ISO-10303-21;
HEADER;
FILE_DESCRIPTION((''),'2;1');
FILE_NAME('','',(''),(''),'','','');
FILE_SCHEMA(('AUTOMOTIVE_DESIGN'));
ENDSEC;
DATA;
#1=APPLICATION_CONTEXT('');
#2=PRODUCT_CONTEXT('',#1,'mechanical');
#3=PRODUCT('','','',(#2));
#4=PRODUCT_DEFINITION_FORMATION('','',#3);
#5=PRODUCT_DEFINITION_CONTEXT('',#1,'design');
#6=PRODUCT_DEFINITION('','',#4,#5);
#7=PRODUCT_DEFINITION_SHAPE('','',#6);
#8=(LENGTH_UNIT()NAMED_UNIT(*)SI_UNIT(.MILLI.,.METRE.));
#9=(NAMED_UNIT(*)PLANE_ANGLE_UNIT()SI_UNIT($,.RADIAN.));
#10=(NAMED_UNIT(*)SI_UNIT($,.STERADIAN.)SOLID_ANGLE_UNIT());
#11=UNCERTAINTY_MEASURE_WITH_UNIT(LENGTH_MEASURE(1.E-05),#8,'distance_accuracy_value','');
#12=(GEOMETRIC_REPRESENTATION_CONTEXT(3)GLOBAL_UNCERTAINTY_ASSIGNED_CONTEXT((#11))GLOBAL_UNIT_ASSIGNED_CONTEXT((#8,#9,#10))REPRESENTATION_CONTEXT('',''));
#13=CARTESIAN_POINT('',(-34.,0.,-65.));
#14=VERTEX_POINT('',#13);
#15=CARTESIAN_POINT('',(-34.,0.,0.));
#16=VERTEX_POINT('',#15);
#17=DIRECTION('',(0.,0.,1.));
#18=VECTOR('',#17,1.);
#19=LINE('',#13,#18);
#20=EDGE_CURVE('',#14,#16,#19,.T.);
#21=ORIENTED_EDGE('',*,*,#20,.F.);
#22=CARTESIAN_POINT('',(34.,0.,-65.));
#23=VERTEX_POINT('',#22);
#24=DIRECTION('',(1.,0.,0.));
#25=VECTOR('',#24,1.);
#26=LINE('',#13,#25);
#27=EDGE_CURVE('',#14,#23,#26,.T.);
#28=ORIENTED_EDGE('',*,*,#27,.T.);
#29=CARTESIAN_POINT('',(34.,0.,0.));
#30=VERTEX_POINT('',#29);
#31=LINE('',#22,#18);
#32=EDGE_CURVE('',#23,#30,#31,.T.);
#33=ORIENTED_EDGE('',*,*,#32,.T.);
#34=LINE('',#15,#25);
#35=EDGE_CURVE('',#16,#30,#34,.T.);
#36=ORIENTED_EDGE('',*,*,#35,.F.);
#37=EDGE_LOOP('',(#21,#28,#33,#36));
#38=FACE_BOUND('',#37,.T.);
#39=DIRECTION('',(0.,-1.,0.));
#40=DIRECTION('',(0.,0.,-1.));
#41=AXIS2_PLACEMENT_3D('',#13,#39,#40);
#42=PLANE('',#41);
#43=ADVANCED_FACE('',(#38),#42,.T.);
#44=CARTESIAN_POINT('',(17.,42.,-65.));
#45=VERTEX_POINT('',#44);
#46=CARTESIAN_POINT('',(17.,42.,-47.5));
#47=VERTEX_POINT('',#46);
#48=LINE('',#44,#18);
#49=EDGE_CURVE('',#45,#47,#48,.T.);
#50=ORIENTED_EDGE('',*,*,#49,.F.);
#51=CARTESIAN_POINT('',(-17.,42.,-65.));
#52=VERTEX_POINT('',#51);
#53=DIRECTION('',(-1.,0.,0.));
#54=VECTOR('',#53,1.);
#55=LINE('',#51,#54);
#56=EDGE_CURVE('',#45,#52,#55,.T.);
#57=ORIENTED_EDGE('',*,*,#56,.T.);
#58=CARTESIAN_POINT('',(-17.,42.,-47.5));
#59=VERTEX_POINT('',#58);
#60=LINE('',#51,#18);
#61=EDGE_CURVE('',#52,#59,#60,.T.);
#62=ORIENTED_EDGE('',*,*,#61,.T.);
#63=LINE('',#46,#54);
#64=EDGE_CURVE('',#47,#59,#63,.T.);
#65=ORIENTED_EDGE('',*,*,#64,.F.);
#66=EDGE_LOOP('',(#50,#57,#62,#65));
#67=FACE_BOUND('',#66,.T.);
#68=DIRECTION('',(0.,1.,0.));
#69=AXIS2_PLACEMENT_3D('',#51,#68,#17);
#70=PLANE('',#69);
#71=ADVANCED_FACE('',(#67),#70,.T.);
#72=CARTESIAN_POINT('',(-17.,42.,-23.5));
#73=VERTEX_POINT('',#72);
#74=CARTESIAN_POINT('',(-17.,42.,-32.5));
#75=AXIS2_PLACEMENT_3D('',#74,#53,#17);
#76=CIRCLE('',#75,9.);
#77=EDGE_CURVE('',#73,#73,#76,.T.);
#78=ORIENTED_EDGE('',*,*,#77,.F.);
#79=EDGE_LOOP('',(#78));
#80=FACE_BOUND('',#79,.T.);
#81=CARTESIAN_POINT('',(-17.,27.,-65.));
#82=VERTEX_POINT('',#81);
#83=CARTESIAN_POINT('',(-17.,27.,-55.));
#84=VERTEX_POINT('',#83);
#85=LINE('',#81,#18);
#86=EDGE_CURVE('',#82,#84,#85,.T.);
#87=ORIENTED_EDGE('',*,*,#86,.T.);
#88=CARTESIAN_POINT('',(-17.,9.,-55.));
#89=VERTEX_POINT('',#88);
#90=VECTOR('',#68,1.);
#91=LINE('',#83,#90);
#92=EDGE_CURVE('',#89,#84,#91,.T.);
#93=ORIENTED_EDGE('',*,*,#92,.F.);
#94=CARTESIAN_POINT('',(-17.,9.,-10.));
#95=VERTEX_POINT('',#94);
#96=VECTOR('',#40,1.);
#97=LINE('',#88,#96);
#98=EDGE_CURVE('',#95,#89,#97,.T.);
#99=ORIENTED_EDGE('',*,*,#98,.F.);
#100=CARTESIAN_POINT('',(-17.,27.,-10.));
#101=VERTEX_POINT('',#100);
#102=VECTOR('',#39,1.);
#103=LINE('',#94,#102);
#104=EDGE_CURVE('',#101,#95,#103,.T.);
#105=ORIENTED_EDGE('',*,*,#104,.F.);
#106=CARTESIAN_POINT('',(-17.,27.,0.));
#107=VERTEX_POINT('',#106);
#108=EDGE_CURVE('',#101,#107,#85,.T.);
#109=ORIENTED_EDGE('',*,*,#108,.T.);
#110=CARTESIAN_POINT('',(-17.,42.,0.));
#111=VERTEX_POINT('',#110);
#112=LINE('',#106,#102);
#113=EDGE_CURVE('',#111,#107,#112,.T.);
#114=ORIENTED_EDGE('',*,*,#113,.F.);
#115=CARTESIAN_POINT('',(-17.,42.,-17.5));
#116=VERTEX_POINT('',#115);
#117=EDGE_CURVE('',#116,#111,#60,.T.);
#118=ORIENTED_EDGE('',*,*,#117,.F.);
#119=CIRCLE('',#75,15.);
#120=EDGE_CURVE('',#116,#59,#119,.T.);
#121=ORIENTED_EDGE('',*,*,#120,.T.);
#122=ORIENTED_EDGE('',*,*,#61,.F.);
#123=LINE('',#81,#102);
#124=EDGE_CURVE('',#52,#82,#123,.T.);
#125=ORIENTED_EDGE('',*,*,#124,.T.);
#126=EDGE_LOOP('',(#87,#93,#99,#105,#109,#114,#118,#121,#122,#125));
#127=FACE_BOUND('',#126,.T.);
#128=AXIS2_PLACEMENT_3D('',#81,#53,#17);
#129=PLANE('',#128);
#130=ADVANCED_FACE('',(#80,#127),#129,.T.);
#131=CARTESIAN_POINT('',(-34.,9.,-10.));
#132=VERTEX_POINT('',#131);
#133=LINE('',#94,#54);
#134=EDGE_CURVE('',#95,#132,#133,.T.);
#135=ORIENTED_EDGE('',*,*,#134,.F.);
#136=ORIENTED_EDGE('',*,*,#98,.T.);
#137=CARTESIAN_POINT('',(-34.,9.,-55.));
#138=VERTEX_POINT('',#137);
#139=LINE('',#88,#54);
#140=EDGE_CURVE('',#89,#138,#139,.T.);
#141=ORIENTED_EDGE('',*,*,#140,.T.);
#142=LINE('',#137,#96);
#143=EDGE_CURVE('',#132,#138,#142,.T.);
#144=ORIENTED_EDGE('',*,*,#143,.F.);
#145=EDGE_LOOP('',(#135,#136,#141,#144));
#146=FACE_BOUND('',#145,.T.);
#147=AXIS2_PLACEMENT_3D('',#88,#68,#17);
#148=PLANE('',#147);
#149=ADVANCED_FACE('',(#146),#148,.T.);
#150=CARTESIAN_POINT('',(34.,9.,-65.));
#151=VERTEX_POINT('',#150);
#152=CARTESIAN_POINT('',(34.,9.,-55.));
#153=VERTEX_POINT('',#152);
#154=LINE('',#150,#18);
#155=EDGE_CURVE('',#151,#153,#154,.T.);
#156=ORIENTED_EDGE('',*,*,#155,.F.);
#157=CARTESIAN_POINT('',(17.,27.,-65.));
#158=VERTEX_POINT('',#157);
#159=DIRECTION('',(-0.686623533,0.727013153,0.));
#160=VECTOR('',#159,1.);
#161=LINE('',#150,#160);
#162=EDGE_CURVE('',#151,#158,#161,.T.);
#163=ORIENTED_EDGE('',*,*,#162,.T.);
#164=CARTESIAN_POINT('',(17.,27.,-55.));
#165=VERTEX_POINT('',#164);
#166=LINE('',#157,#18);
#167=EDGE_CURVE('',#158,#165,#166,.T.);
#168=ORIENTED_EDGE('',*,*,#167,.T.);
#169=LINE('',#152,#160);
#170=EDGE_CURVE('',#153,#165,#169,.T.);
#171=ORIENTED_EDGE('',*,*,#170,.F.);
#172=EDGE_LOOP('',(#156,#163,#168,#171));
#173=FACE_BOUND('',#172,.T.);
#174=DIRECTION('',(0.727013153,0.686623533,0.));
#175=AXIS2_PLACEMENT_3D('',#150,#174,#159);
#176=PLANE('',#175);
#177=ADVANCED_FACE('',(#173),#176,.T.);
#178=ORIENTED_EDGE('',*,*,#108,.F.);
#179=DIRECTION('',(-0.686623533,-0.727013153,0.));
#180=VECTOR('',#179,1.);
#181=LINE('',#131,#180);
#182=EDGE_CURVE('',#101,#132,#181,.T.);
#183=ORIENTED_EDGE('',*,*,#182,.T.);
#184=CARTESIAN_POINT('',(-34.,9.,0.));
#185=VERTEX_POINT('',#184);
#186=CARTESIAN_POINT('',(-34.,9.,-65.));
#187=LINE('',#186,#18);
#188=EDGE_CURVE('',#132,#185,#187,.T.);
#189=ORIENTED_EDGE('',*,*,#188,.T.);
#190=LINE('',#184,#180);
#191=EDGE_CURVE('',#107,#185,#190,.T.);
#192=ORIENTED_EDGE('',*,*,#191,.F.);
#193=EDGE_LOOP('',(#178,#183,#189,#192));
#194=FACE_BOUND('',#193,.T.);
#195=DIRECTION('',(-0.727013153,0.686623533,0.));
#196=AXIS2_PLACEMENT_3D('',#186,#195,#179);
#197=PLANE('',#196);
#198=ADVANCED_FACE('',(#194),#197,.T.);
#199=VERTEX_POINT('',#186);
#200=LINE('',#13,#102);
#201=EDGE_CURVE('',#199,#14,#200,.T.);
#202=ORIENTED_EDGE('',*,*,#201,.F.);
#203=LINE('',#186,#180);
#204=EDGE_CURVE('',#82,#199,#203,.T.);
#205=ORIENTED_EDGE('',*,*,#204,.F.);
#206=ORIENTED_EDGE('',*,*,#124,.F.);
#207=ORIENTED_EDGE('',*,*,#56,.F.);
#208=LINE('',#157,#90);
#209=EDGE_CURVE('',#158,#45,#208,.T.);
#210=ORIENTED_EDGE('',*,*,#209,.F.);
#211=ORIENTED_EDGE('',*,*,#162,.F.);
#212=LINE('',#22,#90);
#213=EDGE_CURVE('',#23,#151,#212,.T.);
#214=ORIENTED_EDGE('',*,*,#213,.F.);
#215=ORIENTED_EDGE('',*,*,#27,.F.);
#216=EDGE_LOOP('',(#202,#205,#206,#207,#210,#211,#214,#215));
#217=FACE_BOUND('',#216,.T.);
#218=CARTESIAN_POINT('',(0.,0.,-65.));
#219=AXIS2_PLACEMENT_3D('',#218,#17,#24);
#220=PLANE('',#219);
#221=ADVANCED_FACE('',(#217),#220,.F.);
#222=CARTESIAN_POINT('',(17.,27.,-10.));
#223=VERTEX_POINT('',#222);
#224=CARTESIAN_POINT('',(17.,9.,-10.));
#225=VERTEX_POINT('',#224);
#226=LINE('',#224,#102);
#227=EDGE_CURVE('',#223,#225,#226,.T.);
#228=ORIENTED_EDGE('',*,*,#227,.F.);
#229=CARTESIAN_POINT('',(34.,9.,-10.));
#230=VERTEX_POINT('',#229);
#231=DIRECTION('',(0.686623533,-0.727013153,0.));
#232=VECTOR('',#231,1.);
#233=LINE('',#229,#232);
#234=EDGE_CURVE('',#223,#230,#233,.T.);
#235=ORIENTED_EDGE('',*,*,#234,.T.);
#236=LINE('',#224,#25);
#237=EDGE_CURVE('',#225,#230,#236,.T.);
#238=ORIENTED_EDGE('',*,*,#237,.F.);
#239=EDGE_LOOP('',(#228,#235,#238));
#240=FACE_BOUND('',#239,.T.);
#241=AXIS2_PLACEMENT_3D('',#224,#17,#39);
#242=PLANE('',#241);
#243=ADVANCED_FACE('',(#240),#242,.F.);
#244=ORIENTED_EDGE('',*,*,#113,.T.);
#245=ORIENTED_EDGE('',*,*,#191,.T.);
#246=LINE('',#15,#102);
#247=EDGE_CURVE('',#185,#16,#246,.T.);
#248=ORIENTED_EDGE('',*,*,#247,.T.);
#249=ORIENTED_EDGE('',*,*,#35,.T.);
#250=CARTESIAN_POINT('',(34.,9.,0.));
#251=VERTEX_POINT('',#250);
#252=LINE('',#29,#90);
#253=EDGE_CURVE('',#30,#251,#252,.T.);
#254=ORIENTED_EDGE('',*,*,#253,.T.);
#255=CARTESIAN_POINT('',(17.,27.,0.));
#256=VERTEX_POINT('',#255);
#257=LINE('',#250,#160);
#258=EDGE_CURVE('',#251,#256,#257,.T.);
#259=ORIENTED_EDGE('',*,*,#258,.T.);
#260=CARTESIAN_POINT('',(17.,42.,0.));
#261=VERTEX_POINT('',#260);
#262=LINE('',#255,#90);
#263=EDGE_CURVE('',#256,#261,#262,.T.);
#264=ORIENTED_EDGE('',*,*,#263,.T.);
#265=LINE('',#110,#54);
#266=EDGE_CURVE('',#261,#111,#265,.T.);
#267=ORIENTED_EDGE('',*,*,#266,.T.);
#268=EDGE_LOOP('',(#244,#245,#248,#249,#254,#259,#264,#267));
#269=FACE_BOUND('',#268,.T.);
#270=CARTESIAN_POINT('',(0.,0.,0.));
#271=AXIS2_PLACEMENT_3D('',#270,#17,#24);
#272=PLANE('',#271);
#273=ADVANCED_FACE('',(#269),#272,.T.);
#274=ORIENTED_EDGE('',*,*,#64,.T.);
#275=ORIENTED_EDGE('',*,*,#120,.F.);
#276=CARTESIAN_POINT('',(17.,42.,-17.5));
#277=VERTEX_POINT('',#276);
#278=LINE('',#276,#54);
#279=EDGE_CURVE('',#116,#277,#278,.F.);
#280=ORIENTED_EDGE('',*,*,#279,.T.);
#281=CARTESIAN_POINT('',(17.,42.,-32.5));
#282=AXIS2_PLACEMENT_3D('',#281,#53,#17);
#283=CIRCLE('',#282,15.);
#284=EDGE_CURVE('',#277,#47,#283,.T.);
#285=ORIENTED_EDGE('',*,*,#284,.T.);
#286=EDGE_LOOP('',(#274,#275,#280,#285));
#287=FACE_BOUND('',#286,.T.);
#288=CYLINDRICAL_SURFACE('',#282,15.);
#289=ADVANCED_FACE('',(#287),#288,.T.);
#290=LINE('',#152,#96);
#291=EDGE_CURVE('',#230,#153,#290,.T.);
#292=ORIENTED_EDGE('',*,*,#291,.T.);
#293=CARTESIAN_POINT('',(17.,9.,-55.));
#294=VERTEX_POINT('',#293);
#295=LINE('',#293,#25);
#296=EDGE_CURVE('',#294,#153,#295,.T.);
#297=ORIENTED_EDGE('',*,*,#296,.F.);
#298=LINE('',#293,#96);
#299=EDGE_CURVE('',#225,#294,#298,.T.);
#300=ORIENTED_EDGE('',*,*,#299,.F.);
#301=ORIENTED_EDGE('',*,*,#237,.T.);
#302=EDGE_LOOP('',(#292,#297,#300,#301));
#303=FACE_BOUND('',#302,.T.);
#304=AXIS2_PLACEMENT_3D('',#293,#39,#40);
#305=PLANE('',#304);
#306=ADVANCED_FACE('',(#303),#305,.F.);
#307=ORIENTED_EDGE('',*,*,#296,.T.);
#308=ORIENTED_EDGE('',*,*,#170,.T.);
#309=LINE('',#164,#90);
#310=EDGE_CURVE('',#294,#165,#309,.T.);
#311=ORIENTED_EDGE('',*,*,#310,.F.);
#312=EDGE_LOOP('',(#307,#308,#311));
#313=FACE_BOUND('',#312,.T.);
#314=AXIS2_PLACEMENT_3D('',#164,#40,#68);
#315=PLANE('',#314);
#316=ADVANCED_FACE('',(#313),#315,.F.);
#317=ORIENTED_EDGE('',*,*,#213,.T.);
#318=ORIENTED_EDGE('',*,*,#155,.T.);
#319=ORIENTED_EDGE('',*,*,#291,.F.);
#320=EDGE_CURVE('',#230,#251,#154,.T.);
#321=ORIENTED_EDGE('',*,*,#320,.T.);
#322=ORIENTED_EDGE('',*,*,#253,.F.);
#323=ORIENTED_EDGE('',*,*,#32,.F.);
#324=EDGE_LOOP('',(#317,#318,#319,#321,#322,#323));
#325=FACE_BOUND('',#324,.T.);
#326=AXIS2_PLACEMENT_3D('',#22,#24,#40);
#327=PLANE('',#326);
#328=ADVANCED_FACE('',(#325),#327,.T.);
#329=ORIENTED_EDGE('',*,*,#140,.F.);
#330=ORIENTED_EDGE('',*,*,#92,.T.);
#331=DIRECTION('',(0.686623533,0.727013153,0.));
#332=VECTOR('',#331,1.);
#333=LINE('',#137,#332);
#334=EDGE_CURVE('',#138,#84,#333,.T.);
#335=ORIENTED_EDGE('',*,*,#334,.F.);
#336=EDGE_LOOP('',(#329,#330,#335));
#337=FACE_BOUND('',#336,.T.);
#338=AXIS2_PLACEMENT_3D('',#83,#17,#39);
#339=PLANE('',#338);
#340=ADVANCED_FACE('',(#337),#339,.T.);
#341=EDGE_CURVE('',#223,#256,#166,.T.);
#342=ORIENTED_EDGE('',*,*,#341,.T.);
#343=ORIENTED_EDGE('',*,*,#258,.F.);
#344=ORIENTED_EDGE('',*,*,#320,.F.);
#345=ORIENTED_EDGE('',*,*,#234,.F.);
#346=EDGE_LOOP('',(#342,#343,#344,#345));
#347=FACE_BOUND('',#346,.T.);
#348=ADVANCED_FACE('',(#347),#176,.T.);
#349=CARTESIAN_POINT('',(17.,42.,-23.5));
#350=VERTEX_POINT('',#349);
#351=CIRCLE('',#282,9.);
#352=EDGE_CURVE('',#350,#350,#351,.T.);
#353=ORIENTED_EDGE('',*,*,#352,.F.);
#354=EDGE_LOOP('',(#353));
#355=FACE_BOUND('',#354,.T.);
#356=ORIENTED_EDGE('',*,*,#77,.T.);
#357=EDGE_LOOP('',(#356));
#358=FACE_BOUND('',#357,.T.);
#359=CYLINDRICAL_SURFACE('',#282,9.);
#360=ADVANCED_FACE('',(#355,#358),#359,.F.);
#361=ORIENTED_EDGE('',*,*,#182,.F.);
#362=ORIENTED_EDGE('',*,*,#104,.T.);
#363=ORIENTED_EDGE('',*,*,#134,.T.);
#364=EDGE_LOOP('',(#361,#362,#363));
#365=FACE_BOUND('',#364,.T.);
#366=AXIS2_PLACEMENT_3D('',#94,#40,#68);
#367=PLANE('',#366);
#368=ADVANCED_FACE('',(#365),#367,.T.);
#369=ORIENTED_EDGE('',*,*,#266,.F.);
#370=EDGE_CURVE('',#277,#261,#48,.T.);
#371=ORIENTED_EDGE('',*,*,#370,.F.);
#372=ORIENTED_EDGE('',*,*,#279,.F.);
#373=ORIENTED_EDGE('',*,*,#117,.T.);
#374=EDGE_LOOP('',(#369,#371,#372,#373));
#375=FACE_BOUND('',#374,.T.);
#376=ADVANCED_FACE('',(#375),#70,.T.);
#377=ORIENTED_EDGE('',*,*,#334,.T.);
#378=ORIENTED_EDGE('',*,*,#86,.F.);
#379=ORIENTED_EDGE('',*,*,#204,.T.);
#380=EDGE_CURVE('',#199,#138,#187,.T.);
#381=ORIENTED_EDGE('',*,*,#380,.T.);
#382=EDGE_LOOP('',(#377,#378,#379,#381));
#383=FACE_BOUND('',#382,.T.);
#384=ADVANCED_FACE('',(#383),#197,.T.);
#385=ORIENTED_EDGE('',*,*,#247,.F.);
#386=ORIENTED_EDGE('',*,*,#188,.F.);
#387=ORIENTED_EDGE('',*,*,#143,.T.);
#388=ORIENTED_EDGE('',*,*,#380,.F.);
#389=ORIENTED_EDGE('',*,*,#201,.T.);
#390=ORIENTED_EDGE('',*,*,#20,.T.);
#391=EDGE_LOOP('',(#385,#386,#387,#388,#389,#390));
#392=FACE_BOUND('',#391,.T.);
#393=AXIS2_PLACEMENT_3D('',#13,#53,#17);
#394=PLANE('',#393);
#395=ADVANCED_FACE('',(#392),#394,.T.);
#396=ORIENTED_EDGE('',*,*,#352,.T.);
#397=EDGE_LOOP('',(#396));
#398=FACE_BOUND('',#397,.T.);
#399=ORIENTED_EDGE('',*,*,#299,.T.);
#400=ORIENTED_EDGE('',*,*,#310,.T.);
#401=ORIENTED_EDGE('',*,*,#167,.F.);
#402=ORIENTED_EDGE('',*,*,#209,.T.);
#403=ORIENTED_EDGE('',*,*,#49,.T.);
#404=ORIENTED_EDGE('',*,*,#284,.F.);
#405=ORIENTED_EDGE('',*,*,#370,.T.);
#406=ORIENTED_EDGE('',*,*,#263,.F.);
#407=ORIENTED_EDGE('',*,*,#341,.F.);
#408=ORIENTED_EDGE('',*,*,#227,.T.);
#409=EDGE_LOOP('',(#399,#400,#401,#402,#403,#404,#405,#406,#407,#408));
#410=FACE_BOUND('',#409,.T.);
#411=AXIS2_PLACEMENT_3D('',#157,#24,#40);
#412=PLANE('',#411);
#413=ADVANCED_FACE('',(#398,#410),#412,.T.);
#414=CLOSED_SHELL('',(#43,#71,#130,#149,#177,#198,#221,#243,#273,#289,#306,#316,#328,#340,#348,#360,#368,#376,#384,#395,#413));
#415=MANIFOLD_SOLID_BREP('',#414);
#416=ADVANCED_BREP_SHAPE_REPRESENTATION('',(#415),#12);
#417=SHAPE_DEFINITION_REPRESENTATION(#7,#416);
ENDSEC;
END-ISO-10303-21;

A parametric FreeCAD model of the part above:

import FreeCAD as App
import Part
import Sketcher

doc = App.newDocument("Part")
body = doc.addObject("PartDesign::Body", "Body")

sketch1 = body.newObject("Sketcher::SketchObject", "Sketch")
sketch1.AttachmentSupport = (doc.getObject("XY_Plane"), [""])
sketch1.MapMode = "FlatFace"
sketch1.addGeometry(Part.LineSegment(App.Vector(-34, 9, 0), App.Vector(-34, 0, 0)), False)
sketch1.addGeometry(Part.LineSegment(App.Vector(-34, 0, 0), App.Vector(34, 0, 0)), False)
sketch1.addGeometry(Part.LineSegment(App.Vector(34, 0, 0), App.Vector(34, 9, 0)), False)
sketch1.addGeometry(Part.LineSegment(App.Vector(34, 9, 0), App.Vector(17, 27, 0)), False)
sketch1.addGeometry(Part.LineSegment(App.Vector(17, 27, 0), App.Vector(17, 42, 0)), False)
sketch1.addGeometry(Part.LineSegment(App.Vector(17, 42, 0), App.Vector(-17, 42, 0)), False)
sketch1.addGeometry(Part.LineSegment(App.Vector(-17, 42, 0), App.Vector(-17, 27, 0)), False)
sketch1.addGeometry(Part.LineSegment(App.Vector(-17, 27, 0), App.Vector(-34, 9, 0)), False)
sketch1.addConstraint(Sketcher.Constraint("Coincident", 0, 2, 1, 1))
sketch1.addConstraint(Sketcher.Constraint("Coincident", 1, 2, 2, 1))
sketch1.addConstraint(Sketcher.Constraint("Coincident", 2, 2, 3, 1))
sketch1.addConstraint(Sketcher.Constraint("Coincident", 3, 2, 4, 1))
sketch1.addConstraint(Sketcher.Constraint("Coincident", 4, 2, 5, 1))
sketch1.addConstraint(Sketcher.Constraint("Coincident", 5, 2, 6, 1))
sketch1.addConstraint(Sketcher.Constraint("Coincident", 6, 2, 7, 1))
sketch1.addConstraint(Sketcher.Constraint("Coincident", 7, 2, 0, 1))
sketch1.addConstraint(Sketcher.Constraint("Vertical", 0))
sketch1.addConstraint(Sketcher.Constraint("Horizontal", 1))
sketch1.addConstraint(Sketcher.Constraint("Vertical", 2))
sketch1.addConstraint(Sketcher.Constraint("Vertical", 4))
sketch1.addConstraint(Sketcher.Constraint("Horizontal", 5))
sketch1.addConstraint(Sketcher.Constraint("Vertical", 6))
sketch1.addConstraint(Sketcher.Constraint("Symmetric", 0, 2, 1, 2, -1, 1))
sketch1.addConstraint(Sketcher.Constraint("Symmetric", 3, 2, 6, 2, -2))
sketch1.addConstraint(Sketcher.Constraint("Horizontal", 2, 2, 7, 2))
sketch1.addConstraint(Sketcher.Constraint("DistanceX", 1, 1, 1, 2, 68.0))
sketch1.addConstraint(Sketcher.Constraint("DistanceX", 5, 2, 5, 1, 34.0))
sketch1.addConstraint(Sketcher.Constraint("DistanceY", 0, 2, 0, 1, 9.0))
sketch1.addConstraint(Sketcher.Constraint("DistanceY", 4, 1, 4, 2, 15.0))
sketch1.addConstraint(Sketcher.Constraint("DistanceY", -1, 1, 3, 2, 27.0))
pad1 = body.newObject("PartDesign::Pad", "Pad")
pad1.Profile = sketch1
pad1.Length = 65
pad1.Reversed = True

sketch2 = body.newObject("Sketcher::SketchObject", "Sketch001")
sketch2.AttachmentSupport = (doc.getObject("YZ_Plane"), [""])
sketch2.MapMode = "FlatFace"
sketch2.AttachmentOffset = App.Placement(App.Vector(0, 0, -17), App.Rotation())
sketch2.addGeometry(Part.Circle(App.Vector(42, -32, 0), App.Vector(0, 0, 1), 15), False)
sketch2.addConstraint(Sketcher.Constraint("Diameter", 0, 30.0))
sketch2.addConstraint(Sketcher.Constraint("DistanceX", -1, 1, 0, 3, 42.0))
sketch2.addConstraint(Sketcher.Constraint("DistanceY", 0, 3, -1, 1, 32.5))
pad2 = body.newObject("PartDesign::Pad", "Pad001")
pad2.Profile = sketch2
pad2.Length = 34

sketch3 = body.newObject("Sketcher::SketchObject", "Sketch002")
sketch3.AttachmentSupport = (doc.getObject("YZ_Plane"), [""])
sketch3.MapMode = "FlatFace"
sketch3.AttachmentOffset = App.Placement(App.Vector(0, 0, -17), App.Rotation())
sketch3.addGeometry(Part.Circle(App.Vector(42, -32, 0), App.Vector(0, 0, 1), 9), False)
sketch3.addConstraint(Sketcher.Constraint("Diameter", 0, 18.0))
sketch3.addConstraint(Sketcher.Constraint("DistanceX", -1, 1, 0, 3, 42.0))
sketch3.addConstraint(Sketcher.Constraint("DistanceY", 0, 3, -1, 1, 32.5))
pocket1 = body.newObject("PartDesign::Pocket", "Pocket")
pocket1.Profile = sketch3
pocket1.Length = 34
pocket1.Reversed = True

sketch4 = body.newObject("Sketcher::SketchObject", "Sketch003")
sketch4.AttachmentSupport = (doc.getObject("YZ_Plane"), [""])
sketch4.MapMode = "FlatFace"
sketch4.AttachmentOffset = App.Placement(App.Vector(0, 0, -34), App.Rotation())
sketch4.addGeometry(Part.LineSegment(App.Vector(27, -10, 0), App.Vector(9, -10, 0)), False)
sketch4.addGeometry(Part.LineSegment(App.Vector(9, -10, 0), App.Vector(9, -55, 0)), False)
sketch4.addGeometry(Part.LineSegment(App.Vector(9, -55, 0), App.Vector(27, -55, 0)), False)
sketch4.addGeometry(Part.LineSegment(App.Vector(27, -55, 0), App.Vector(27, -10, 0)), False)
sketch4.addConstraint(Sketcher.Constraint("Coincident", 0, 2, 1, 1))
sketch4.addConstraint(Sketcher.Constraint("Coincident", 1, 2, 2, 1))
sketch4.addConstraint(Sketcher.Constraint("Coincident", 2, 2, 3, 1))
sketch4.addConstraint(Sketcher.Constraint("Coincident", 3, 2, 0, 1))
sketch4.addConstraint(Sketcher.Constraint("Horizontal", 0))
sketch4.addConstraint(Sketcher.Constraint("Vertical", 1))
sketch4.addConstraint(Sketcher.Constraint("Horizontal", 2))
sketch4.addConstraint(Sketcher.Constraint("Vertical", 3))
sketch4.addConstraint(Sketcher.Constraint("DistanceX", 0, 2, 0, 1, 18.0))
sketch4.addConstraint(Sketcher.Constraint("DistanceY", 1, 2, 1, 1, 45.0))
sketch4.addConstraint(Sketcher.Constraint("DistanceX", -1, 1, 0, 2, 9.0))
sketch4.addConstraint(Sketcher.Constraint("DistanceY", 0, 2, -1, 1, 10.0))
pocket2 = body.newObject("PartDesign::Pocket", "Pocket001")
pocket2.Profile = sketch4
pocket2.Length = 17
pocket2.Reversed = True
doc.recompute()

mirrored = body.newObject("PartDesign::Mirrored", "Mirrored")
mirrored.Originals = [pocket2]
mirrored.MirrorPlane = (doc.getObject("YZ_Plane"), [""])
body.Tip = mirrored

doc.recompute()
